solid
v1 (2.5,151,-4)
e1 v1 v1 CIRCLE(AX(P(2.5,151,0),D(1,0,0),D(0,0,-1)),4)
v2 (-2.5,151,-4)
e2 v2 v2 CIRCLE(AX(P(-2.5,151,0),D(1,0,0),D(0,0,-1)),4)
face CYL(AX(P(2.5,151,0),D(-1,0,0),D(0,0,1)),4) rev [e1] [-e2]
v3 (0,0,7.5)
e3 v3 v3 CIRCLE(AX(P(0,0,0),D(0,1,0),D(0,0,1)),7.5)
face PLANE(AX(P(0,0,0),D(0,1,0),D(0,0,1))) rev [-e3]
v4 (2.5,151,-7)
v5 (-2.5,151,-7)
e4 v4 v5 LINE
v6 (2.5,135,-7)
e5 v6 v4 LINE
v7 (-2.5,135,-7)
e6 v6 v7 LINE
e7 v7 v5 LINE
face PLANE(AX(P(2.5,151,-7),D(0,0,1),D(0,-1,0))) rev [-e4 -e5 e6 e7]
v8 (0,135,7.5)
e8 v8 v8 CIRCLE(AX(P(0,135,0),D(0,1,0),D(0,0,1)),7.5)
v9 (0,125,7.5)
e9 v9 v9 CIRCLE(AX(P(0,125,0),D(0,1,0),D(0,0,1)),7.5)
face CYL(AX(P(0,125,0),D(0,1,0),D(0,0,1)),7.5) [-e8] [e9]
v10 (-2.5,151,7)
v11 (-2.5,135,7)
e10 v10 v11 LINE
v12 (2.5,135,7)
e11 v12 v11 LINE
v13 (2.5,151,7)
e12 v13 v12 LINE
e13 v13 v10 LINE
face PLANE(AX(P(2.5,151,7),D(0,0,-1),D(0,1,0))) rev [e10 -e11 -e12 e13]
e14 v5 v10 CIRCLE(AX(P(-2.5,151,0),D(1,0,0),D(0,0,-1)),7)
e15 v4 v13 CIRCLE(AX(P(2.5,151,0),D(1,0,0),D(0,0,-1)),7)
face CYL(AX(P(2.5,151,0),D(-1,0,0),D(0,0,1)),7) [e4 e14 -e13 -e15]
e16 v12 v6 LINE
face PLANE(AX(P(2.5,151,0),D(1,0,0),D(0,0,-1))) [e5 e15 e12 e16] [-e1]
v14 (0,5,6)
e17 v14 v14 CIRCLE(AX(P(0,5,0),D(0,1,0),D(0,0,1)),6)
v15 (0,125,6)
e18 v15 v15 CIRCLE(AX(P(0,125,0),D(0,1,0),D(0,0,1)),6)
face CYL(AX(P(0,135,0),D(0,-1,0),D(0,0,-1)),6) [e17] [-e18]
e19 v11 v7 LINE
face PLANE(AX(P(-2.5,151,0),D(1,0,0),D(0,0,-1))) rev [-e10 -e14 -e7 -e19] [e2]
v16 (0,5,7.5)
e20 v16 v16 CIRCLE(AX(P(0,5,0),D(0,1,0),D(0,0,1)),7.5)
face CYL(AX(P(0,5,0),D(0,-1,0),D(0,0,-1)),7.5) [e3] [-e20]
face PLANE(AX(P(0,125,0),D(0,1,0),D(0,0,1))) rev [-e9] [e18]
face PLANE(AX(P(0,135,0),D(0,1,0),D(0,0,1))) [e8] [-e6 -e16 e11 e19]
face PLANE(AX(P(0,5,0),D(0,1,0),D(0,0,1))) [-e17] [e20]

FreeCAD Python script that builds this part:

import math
import FreeCAD as App
import Part
import Sketcher
Q = App.Units.Quantity

doc = App.newDocument("Part")
params = doc.addObject("Spreadsheet::Sheet", "Params")
for row, (alias, value) in enumerate([
    ("sketch1_diameter", "15 mm"),
    ("pad1_length", "5 mm"),
    ("sketch2_diameter", "12 mm"),
    ("pad2_length", "130 mm"),
    ("sketch3_diameter", "8 mm"),
    ("sketch3_radius", "7 mm"),
    ("sketch3_width", "16 mm"),
    ("pad3_length", "5 mm"),
    ("sketch4_diameter", "15 mm"),
    ("pad4_length", "10 mm"),
], start=1):
    params.set(f"A{row}", alias)
    params.set(f"B{row}", "=" + value)
    params.setAlias(f"B{row}", alias)

body = doc.addObject("PartDesign::Body", "Body")

# Sketch on XZ plane
sketch1 = body.newObject("Sketcher::SketchObject", "Sketch")
sketch1.AttachmentSupport = (doc.getObject("XZ_Plane"), [""])
sketch1.MapMode = "FlatFace"
sketch1.addGeometry(Part.Circle(App.Vector(0, 0, 0), App.Vector(0, 0, 1), 8), False)
sketch1.addConstraint([
    Sketcher.Constraint("Coincident", 0, 3, -1, 1),
    Sketcher.Constraint("Diameter", 0, Q("15 mm")),
])
sketch1.setExpression("Constraints[1]", "Params.sketch1_diameter")
pad1 = body.newObject("PartDesign::Pad", "Pad")
pad1.Profile = sketch1
pad1.setExpression("Length", "Params.pad1_length")
pad1.Reversed = True

# Sketch on XZ plane
sketch2 = body.newObject("Sketcher::SketchObject", "Sketch001")
sketch2.AttachmentSupport = (doc.getObject("XZ_Plane"), [""])
sketch2.MapMode = "FlatFace"
sketch2.AttachmentOffset = App.Placement(App.Vector(0, 0, -5), App.Rotation())
sketch2.addGeometry(Part.Circle(App.Vector(0, 0, 0), App.Vector(0, 0, 1), 6), False)
sketch2.addConstraint([
    Sketcher.Constraint("Coincident", 0, 3, -1, 1),
    Sketcher.Constraint("Diameter", 0, Q("12 mm")),
])
sketch2.setExpression("Constraints[1]", "Params.sketch2_diameter")
pad2 = body.newObject("PartDesign::Pad", "Pad001")
pad2.Profile = sketch2
pad2.setExpression("Length", "Params.pad2_length")
pad2.Reversed = True

# Sketch on YZ plane
sketch3 = body.newObject("Sketcher::SketchObject", "Sketch002")
sketch3.AttachmentSupport = (doc.getObject("YZ_Plane"), [""])
sketch3.MapMode = "FlatFace"
sketch3.addGeometry([
    Part.LineSegment(App.Vector(151, 7, 0), App.Vector(135, 7, 0)),  # 0
    Part.LineSegment(App.Vector(135, 7, 0), App.Vector(135, -7, 0)),  # 1
    Part.LineSegment(App.Vector(135, -7, 0), App.Vector(151, -7, 0)),  # 2
    Part.ArcOfCircle(Part.Circle(App.Vector(151, 0, 0), App.Vector(0, 0, 1), 7), math.radians(-90), math.radians(90)),  # 3
    Part.Circle(App.Vector(151, 0, 0), App.Vector(0, 0, 1), 4),  # 4
], False)
sketch3.addConstraint([
    Sketcher.Constraint("Coincident", 0, 2, 1, 1),
    Sketcher.Constraint("Coincident", 1, 2, 2, 1),
    Sketcher.Constraint("Tangent", 2, 2, 3, 1),
    Sketcher.Constraint("Tangent", 3, 2, 0, 1),
    Sketcher.Constraint("Horizontal", 0),
    Sketcher.Constraint("Vertical", 1),
    Sketcher.Constraint("Horizontal", 2),
    Sketcher.Constraint("Coincident", 4, 3, 3, 3),
    Sketcher.Constraint("PointOnObject", 3, 3, -1),
    Sketcher.Constraint("Diameter", 4, Q("8 mm")),
    Sketcher.Constraint("Radius", 3, Q("7 mm")),
    Sketcher.Constraint("DistanceX", 0, 2, 0, 1, Q("16 mm")),
    Sketcher.Constraint("DistanceX", -1, 1, 3, 3, Q("151 mm")),
])
sketch3.setExpression("Constraints[9]", "Params.sketch3_diameter")
sketch3.setExpression("Constraints[10]", "Params.sketch3_radius")
sketch3.setExpression("Constraints[11]", "Params.sketch3_width")
pad3 = body.newObject("PartDesign::Pad", "Pad002")
pad3.Profile = sketch3
pad3.setExpression("Length", "Params.pad3_length")
pad3.Midplane = True

# Sketch on XZ plane
sketch4 = body.newObject("Sketcher::SketchObject", "Sketch003")
sketch4.AttachmentSupport = (doc.getObject("XZ_Plane"), [""])
sketch4.MapMode = "FlatFace"
sketch4.AttachmentOffset = App.Placement(App.Vector(0, 0, -125), App.Rotation())
sketch4.addGeometry(Part.Circle(App.Vector(0, 0, 0), App.Vector(0, 0, 1), 8), False)
sketch4.addConstraint([
    Sketcher.Constraint("Coincident", 0, 3, -1, 1),
    Sketcher.Constraint("Diameter", 0, Q("15 mm")),
])
sketch4.setExpression("Constraints[1]", "Params.sketch4_diameter")
pad4 = body.newObject("PartDesign::Pad", "Pad003")
pad4.Profile = sketch4
pad4.setExpression("Length", "Params.pad4_length")
pad4.Reversed = True

doc.recompute()
